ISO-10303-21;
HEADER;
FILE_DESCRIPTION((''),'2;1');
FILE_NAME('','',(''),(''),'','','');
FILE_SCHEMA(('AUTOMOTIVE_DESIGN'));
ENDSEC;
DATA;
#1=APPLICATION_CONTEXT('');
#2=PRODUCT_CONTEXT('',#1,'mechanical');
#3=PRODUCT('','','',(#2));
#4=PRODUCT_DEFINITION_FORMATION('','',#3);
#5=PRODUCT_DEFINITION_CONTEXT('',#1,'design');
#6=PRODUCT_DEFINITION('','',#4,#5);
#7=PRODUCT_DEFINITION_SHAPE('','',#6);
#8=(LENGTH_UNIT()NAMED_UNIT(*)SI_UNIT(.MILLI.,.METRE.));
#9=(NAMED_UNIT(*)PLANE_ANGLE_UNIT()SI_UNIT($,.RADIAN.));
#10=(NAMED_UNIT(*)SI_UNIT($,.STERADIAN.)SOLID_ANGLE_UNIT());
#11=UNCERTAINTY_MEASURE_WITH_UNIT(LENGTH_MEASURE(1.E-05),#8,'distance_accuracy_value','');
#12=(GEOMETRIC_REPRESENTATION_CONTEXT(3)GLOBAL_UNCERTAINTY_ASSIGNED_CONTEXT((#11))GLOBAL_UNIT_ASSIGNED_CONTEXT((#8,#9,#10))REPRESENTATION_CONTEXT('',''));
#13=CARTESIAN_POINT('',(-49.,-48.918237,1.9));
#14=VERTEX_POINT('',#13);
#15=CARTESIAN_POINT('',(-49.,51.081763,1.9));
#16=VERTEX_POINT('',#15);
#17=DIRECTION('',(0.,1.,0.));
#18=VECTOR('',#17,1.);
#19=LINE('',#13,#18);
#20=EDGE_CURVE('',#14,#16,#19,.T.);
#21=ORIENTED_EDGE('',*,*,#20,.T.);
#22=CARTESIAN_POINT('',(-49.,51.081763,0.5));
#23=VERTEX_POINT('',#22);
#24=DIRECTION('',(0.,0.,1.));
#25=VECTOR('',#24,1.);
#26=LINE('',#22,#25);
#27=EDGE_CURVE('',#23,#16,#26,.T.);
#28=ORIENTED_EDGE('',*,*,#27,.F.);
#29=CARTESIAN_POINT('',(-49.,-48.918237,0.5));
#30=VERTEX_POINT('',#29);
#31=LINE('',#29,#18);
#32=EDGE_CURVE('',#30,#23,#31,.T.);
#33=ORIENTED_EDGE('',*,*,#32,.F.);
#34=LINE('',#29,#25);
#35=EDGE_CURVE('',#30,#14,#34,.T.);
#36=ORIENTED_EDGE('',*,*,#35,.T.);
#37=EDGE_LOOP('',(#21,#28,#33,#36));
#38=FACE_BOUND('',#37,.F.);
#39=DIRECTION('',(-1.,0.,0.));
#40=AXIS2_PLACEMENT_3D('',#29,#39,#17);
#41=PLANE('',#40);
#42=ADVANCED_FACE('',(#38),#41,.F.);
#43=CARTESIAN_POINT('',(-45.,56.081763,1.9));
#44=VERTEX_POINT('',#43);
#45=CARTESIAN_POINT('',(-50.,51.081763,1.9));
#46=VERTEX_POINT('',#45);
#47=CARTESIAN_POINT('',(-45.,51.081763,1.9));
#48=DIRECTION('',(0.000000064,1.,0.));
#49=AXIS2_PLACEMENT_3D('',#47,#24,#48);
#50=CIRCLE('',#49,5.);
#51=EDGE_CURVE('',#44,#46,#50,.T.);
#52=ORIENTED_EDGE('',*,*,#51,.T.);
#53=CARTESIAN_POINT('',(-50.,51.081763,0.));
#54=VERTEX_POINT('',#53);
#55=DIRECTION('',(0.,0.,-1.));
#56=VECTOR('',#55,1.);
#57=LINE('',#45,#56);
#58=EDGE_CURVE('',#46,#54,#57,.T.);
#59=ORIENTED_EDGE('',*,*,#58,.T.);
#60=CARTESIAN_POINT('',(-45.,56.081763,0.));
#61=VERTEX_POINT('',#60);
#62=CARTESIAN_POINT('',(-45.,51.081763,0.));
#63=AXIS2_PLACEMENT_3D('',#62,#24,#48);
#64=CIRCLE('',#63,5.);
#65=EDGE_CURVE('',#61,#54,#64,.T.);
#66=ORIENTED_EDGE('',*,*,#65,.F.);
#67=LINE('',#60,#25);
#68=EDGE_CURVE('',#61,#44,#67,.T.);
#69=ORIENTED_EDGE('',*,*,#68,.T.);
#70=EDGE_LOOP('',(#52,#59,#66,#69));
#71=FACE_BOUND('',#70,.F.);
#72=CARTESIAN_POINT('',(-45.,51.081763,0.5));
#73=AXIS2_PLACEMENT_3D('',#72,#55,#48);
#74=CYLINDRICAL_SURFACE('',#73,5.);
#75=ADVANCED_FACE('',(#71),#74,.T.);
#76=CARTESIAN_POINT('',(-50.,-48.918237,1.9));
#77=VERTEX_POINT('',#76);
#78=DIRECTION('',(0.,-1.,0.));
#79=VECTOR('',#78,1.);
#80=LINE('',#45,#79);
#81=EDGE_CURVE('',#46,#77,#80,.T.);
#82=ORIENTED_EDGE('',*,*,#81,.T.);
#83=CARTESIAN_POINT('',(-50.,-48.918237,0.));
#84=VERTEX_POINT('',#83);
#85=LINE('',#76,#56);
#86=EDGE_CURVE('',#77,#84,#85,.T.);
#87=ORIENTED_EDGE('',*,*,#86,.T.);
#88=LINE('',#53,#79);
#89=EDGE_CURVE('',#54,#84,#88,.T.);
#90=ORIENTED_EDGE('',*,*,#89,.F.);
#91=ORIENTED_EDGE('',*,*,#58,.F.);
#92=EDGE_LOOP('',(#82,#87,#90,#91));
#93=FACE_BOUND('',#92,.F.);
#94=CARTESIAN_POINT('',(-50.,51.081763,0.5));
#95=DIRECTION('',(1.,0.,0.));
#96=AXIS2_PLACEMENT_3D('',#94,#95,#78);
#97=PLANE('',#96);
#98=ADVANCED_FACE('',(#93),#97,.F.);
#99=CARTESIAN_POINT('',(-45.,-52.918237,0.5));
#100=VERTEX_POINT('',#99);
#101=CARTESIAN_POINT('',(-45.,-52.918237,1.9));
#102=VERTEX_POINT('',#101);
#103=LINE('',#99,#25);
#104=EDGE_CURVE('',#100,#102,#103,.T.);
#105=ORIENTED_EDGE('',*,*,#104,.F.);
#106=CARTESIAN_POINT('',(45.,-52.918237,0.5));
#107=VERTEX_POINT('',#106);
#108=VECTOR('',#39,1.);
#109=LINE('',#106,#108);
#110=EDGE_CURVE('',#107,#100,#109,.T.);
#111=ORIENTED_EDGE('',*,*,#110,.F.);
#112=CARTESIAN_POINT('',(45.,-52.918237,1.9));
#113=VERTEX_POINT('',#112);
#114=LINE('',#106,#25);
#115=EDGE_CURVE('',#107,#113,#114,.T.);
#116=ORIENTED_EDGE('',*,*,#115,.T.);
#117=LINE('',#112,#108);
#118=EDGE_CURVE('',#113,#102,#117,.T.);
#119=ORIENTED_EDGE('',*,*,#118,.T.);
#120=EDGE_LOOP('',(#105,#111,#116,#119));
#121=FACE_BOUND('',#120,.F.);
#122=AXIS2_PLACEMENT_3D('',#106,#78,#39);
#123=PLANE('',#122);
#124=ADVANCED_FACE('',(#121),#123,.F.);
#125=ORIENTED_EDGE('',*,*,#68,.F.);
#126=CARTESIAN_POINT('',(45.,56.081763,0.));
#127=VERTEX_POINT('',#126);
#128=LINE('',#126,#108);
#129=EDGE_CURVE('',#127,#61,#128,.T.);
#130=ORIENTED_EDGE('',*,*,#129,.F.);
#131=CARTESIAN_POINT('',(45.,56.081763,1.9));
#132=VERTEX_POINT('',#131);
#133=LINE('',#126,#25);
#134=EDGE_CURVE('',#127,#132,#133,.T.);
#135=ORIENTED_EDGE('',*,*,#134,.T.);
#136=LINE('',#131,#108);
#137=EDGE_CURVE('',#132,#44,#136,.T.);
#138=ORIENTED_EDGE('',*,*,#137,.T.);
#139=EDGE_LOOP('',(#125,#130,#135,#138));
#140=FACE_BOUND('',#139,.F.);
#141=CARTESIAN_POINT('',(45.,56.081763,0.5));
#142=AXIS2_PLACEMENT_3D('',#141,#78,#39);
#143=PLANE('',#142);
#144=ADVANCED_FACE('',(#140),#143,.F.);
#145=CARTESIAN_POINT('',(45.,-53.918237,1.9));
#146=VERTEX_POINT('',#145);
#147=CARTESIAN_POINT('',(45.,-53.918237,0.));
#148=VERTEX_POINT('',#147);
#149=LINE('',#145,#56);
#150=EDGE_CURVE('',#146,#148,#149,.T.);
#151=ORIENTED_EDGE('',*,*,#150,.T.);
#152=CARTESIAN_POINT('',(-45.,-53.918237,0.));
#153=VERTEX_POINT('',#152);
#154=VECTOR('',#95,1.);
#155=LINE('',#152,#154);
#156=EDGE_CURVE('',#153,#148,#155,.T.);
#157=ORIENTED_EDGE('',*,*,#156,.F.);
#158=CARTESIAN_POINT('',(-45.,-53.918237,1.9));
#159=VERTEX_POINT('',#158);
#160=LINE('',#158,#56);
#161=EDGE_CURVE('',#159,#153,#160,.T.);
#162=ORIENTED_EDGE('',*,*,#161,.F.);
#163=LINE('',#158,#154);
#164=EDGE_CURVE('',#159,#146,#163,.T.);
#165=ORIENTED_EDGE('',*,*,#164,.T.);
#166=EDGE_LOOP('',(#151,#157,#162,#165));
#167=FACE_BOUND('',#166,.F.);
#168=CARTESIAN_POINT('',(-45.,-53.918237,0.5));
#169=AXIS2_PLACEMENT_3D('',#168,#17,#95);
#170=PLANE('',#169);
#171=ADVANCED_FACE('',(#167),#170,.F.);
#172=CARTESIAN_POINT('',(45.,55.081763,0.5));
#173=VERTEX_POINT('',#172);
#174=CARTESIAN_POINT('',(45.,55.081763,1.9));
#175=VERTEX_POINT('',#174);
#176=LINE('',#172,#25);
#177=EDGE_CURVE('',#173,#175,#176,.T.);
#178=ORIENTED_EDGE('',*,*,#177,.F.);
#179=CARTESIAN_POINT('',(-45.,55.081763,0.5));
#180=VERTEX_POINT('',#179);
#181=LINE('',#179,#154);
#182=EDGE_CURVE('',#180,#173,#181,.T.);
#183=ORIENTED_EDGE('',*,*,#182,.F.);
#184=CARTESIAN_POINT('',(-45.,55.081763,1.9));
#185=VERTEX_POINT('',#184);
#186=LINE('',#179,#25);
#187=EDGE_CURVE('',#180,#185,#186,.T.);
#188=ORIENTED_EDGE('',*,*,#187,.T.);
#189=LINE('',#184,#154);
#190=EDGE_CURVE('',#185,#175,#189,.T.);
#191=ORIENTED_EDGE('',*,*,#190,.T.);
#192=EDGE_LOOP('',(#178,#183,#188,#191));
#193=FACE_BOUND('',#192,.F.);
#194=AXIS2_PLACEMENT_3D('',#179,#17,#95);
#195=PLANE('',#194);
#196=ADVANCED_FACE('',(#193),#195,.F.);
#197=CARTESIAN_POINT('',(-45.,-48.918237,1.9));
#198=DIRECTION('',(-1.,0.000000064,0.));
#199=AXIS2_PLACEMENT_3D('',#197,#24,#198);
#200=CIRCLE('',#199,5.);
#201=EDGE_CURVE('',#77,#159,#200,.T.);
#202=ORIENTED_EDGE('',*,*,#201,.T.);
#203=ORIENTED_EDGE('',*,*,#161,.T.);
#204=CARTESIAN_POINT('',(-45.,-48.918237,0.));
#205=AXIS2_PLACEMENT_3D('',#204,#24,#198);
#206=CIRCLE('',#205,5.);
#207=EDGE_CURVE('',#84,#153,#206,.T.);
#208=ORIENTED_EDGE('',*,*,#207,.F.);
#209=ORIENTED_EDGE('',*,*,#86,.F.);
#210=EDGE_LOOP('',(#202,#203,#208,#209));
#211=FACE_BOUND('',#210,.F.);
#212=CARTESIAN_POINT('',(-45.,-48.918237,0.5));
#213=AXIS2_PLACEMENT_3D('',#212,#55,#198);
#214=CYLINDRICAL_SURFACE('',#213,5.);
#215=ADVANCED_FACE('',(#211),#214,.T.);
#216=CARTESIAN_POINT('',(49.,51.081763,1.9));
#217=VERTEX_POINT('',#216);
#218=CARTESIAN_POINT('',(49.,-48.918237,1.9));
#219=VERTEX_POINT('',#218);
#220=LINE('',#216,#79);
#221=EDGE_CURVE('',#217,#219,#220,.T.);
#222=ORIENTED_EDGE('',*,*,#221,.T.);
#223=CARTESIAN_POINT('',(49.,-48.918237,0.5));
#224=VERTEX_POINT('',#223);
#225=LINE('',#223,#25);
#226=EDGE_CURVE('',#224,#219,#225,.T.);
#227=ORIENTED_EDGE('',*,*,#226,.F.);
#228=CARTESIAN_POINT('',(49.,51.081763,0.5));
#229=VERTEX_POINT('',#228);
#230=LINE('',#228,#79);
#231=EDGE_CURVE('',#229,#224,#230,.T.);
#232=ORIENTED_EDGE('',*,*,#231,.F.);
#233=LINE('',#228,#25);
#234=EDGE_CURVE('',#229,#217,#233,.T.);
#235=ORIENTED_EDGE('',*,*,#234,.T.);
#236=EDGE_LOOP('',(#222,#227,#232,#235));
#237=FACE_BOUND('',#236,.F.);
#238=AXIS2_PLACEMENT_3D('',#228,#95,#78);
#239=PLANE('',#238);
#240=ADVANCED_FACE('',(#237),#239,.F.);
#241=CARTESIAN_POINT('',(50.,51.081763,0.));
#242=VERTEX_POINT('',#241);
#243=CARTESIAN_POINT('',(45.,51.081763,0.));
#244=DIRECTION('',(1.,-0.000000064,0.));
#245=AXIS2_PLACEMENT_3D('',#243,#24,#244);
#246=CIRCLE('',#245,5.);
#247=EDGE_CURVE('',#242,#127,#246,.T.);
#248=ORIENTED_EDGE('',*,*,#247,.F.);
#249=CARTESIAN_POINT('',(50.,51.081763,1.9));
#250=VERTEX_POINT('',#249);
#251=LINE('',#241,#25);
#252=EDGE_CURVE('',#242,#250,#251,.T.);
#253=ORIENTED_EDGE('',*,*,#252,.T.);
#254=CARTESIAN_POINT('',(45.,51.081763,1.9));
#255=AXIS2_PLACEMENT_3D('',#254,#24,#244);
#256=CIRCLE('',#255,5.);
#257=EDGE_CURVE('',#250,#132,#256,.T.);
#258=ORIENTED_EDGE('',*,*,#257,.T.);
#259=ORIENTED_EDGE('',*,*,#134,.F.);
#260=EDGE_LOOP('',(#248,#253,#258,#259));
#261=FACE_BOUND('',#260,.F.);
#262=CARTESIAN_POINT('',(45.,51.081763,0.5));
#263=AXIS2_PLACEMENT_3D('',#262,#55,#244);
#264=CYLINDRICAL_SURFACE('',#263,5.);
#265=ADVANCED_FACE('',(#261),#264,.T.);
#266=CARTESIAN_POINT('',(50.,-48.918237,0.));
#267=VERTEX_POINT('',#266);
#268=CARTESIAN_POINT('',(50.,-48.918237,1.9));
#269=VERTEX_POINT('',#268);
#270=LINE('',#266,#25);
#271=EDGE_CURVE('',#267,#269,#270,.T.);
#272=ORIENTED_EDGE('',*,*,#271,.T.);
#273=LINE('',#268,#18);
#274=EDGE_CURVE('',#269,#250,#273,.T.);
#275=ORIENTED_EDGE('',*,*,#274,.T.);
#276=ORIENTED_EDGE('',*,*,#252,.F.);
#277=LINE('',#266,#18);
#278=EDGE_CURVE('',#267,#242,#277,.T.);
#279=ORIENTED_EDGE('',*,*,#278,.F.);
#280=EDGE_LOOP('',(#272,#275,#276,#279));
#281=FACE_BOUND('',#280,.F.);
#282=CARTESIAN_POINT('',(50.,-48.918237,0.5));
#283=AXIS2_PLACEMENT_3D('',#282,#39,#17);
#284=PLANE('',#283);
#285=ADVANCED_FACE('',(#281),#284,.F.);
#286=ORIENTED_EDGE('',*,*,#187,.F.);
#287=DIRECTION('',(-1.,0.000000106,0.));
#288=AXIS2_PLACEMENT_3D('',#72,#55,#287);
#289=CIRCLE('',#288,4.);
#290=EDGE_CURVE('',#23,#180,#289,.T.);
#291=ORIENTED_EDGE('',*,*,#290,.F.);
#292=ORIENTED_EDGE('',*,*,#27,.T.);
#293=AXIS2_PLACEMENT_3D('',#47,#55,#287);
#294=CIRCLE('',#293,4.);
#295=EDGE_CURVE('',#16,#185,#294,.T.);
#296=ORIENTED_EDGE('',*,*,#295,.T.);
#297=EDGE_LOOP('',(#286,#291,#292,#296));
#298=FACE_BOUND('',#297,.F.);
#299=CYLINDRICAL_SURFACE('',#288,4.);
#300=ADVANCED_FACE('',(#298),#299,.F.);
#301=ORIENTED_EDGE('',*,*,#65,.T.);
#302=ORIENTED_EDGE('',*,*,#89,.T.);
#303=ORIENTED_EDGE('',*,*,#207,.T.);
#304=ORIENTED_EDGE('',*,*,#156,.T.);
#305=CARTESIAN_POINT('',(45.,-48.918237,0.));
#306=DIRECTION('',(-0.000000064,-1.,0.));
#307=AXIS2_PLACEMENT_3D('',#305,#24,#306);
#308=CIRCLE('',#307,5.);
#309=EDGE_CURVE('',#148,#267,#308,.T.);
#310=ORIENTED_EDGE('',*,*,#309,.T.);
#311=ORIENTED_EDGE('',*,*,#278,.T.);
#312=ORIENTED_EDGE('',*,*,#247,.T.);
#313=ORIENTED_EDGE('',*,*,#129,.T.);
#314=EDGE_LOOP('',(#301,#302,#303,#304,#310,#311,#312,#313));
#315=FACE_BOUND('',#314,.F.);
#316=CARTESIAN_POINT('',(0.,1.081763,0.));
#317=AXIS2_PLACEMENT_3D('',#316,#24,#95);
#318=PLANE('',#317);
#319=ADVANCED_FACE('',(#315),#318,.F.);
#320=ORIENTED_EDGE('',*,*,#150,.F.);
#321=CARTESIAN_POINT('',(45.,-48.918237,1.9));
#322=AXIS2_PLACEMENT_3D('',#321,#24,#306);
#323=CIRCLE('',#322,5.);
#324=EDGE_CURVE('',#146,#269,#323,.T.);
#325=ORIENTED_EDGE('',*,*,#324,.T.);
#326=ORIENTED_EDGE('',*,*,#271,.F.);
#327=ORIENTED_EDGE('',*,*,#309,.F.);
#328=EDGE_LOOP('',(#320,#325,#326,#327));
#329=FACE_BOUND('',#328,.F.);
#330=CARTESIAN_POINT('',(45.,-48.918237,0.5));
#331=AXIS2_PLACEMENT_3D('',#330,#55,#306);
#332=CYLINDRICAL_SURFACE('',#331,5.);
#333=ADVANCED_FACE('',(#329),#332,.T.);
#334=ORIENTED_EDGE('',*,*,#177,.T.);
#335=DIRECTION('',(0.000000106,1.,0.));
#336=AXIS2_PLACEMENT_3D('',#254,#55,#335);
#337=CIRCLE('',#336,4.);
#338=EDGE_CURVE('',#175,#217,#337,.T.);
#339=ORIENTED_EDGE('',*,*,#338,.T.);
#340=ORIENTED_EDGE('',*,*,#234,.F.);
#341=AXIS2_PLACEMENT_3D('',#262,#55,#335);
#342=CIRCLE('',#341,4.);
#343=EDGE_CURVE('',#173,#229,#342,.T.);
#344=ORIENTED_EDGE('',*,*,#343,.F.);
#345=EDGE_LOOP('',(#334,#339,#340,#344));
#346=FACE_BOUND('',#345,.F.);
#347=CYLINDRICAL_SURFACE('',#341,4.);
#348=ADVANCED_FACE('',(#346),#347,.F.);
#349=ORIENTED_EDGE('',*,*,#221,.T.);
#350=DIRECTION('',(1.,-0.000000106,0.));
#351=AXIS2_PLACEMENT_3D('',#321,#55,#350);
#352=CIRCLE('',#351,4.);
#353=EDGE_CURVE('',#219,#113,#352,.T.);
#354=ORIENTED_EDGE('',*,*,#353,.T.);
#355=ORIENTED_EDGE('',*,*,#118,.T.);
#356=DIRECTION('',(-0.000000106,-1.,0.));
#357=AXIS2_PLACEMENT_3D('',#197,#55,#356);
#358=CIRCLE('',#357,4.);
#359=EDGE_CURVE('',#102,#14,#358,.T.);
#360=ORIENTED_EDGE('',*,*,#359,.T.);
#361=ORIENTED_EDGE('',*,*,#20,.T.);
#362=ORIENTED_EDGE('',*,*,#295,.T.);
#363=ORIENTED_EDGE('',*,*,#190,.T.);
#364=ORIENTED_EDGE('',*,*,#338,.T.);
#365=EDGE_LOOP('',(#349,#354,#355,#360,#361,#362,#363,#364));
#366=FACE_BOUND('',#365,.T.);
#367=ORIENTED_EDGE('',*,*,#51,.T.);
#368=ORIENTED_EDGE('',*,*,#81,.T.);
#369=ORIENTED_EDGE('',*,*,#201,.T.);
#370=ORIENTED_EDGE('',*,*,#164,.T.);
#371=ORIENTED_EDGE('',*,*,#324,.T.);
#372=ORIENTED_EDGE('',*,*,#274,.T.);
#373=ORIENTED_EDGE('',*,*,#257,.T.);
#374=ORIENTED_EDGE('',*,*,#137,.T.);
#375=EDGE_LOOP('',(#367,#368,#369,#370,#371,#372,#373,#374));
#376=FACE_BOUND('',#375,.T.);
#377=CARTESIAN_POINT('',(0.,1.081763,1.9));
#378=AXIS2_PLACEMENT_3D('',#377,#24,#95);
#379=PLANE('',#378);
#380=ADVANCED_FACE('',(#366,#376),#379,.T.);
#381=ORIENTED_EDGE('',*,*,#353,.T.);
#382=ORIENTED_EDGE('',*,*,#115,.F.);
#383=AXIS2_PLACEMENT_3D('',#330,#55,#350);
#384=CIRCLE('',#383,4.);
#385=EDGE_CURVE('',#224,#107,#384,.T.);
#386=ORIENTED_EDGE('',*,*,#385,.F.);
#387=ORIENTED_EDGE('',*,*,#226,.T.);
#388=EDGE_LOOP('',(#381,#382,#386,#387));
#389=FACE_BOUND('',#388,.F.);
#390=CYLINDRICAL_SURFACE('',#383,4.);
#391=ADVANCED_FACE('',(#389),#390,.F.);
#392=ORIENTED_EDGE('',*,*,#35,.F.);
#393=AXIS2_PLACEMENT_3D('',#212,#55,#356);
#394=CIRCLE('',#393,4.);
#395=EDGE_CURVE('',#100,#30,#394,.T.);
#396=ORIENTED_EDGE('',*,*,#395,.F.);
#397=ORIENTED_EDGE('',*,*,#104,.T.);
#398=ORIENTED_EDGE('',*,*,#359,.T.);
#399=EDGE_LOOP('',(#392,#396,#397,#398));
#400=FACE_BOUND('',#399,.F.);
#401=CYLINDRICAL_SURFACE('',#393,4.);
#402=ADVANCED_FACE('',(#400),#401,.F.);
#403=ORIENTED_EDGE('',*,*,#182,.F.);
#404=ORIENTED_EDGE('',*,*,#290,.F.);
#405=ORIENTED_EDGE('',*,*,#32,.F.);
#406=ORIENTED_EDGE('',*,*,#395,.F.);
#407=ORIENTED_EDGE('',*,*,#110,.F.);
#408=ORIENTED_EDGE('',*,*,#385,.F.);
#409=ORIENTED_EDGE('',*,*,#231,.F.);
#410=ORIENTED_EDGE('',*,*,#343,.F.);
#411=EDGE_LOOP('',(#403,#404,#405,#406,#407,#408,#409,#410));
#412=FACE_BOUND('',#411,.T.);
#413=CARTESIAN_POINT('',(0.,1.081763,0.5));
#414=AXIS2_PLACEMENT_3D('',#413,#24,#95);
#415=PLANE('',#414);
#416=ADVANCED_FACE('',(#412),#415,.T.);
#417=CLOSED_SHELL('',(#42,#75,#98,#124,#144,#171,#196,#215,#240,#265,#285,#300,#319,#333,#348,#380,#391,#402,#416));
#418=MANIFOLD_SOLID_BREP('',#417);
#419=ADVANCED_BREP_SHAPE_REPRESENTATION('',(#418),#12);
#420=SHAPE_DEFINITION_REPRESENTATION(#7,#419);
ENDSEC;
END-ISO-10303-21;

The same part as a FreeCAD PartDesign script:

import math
import FreeCAD as App
import Part
import Sketcher

V = App.Vector
Q = App.Units.Quantity

doc = App.newDocument("Part")
params = doc.addObject("Spreadsheet::Sheet", "Params")
for row, (alias, value) in enumerate([
    ("sketch1_radius", "5 mm"),
    ("sketch1_width", "90 mm"),
    ("sketch1_height", "100 mm"),
    ("pad1_length", "0.5 mm"),
    ("sketch2_radius", "5 mm"),
    ("sketch2_radius2", "4 mm"),
    ("sketch2_width", "90 mm"),
    ("sketch2_height", "100 mm"),
    ("pad2_length", "1.4 mm"),
], start=1):
    params.set(f"A{row}", alias)
    params.set(f"B{row}", "=" + value)
    params.setAlias(f"B{row}", alias)

body = doc.addObject("PartDesign::Body", "Body")

# Sketch on XY plane
sketch1 = doc.addObject("Sketcher::SketchObject", "Sketch")
body.addObject(sketch1)
sketch1.AttachmentSupport = (doc.XY_Plane, [""])
sketch1.MapMode = "FlatFace"
sketch1.addGeometry([
    Part.LineSegment(V(-45, -53.9, 0), V(45, -53.9, 0)),  # 0
    Part.ArcOfCircle(Part.Circle(V(45, -48.9, 0), V(0, 0, 1), 5), math.radians(-90), math.radians(0)),  # 1
    Part.LineSegment(V(50, -48.9, 0), V(50, 51.1, 0)),  # 2
    Part.ArcOfCircle(Part.Circle(V(45, 51.1, 0), V(0, 0, 1), 5), math.radians(0), math.radians(90)),  # 3
    Part.LineSegment(V(45, 56.1, 0), V(-45, 56.1, 0)),  # 4
    Part.ArcOfCircle(Part.Circle(V(-45, 51.1, 0), V(0, 0, 1), 5), math.radians(90), math.radians(180)),  # 5
    Part.LineSegment(V(-50, 51.1, 0), V(-50, -48.9, 0)),  # 6
    Part.ArcOfCircle(Part.Circle(V(-45, -48.9, 0), V(0, 0, 1), 5), math.radians(180), math.radians(270)),  # 7
], False)
sketch1.addConstraint([
    Sketcher.Constraint("Tangent", 0, 2, 1, 1),
    Sketcher.Constraint("Tangent", 1, 2, 2, 1),
    Sketcher.Constraint("Tangent", 2, 2, 3, 1),
    Sketcher.Constraint("Tangent", 3, 2, 4, 1),
    Sketcher.Constraint("Tangent", 4, 2, 5, 1),
    Sketcher.Constraint("Tangent", 5, 2, 6, 1),
    Sketcher.Constraint("Tangent", 6, 2, 7, 1),
    Sketcher.Constraint("Tangent", 7, 2, 0, 1),
    Sketcher.Constraint("Horizontal", 0),
    Sketcher.Constraint("Vertical", 2),
    Sketcher.Constraint("Horizontal", 4),
    Sketcher.Constraint("Vertical", 6),
    Sketcher.Constraint("Equal", 1, 3),
    Sketcher.Constraint("Equal", 3, 5),
    Sketcher.Constraint("Equal", 5, 7),
    Sketcher.Constraint("Radius", 1, Q("5 mm")),
    Sketcher.Constraint("DistanceX", 0, 1, 0, 2, Q("90 mm")),
    Sketcher.Constraint("DistanceY", 2, 1, 2, 2, Q("100 mm")),
    Sketcher.Constraint("DistanceX", -1, 1, 1, 3, Q("45 mm")),
    Sketcher.Constraint("DistanceY", 1, 3, -1, 1, Q("48.918237 mm")),
])
sketch1.setExpression("Constraints[15]", "Params.sketch1_radius")
sketch1.setExpression("Constraints[16]", "Params.sketch1_width")
sketch1.setExpression("Constraints[17]", "Params.sketch1_height")
pad1 = doc.addObject("PartDesign::Pad", "Pad")
body.addObject(pad1)
pad1.Profile = sketch1
pad1.setExpression("Length", "Params.pad1_length")

# Sketch on XY plane
sketch2 = doc.addObject("Sketcher::SketchObject", "Sketch001")
body.addObject(sketch2)
sketch2.AttachmentSupport = (doc.XY_Plane, [""])
sketch2.MapMode = "FlatFace"
sketch2.AttachmentOffset = App.Placement(V(0, 0, 0.5), App.Rotation())
sketch2.addGeometry([
    Part.ArcOfCircle(Part.Circle(V(45, -48.9, 0), V(0, 0, 1), 5), math.radians(-90), math.radians(0)),  # 0
    Part.LineSegment(V(50, -48.9, 0), V(50, 51.1, 0)),  # 1
    Part.ArcOfCircle(Part.Circle(V(45, 51.1, 0), V(0, 0, 1), 5), math.radians(0), math.radians(90)),  # 2
    Part.LineSegment(V(45, 56.1, 0), V(-45, 56.1, 0)),  # 3
    Part.ArcOfCircle(Part.Circle(V(-45, 51.1, 0), V(0, 0, 1), 5), math.radians(90), math.radians(180)),  # 4
    Part.LineSegment(V(-50, 51.1, 0), V(-50, -48.9, 0)),  # 5
    Part.ArcOfCircle(Part.Circle(V(-45, -48.9, 0), V(0, 0, 1), 5), math.radians(180), math.radians(270)),  # 6
    Part.LineSegment(V(-45, -53.9, 0), V(45, -53.9, 0)),  # 7
    Part.ArcOfCircle(Part.Circle(V(45, 51.1, 0), V(0, 0, 1), 4), math.radians(0), math.radians(90)),  # 8
    Part.LineSegment(V(49, 51.1, 0), V(49, -48.9, 0)),  # 9
    Part.ArcOfCircle(Part.Circle(V(45, -48.9, 0), V(0, 0, 1), 4), math.radians(-90), math.radians(0)),  # 10
    Part.LineSegment(V(45, -52.9, 0), V(-45, -52.9, 0)),  # 11
    Part.ArcOfCircle(Part.Circle(V(-45, -48.9, 0), V(0, 0, 1), 4), math.radians(-180), math.radians(-90)),  # 12
    Part.LineSegment(V(-49, -48.9, 0), V(-49, 51.1, 0)),  # 13
    Part.ArcOfCircle(Part.Circle(V(-45, 51.1, 0), V(0, 0, 1), 4), math.radians(90), math.radians(180)),  # 14
    Part.LineSegment(V(-45, 55.1, 0), V(45, 55.1, 0)),  # 15
], False)
sketch2.addConstraint([
    Sketcher.Constraint("Tangent", 0, 2, 1, 1),
    Sketcher.Constraint("Tangent", 1, 2, 2, 1),
    Sketcher.Constraint("Tangent", 2, 2, 3, 1),
    Sketcher.Constraint("Tangent", 3, 2, 4, 1),
    Sketcher.Constraint("Tangent", 4, 2, 5, 1),
    Sketcher.Constraint("Tangent", 5, 2, 6, 1),
    Sketcher.Constraint("Tangent", 6, 2, 7, 1),
    Sketcher.Constraint("Tangent", 7, 2, 0, 1),
    Sketcher.Constraint("Tangent", 8, 1, 9, 1),
    Sketcher.Constraint("Tangent", 9, 2, 10, 2),
    Sketcher.Constraint("Tangent", 10, 1, 11, 1),
    Sketcher.Constraint("Tangent", 11, 2, 12, 2),
    Sketcher.Constraint("Tangent", 12, 1, 13, 1),
    Sketcher.Constraint("Tangent", 13, 2, 14, 2),
    Sketcher.Constraint("Tangent", 14, 1, 15, 1),
    Sketcher.Constraint("Tangent", 15, 2, 8, 2),
    Sketcher.Constraint("Vertical", 1),
    Sketcher.Constraint("Horizontal", 3),
    Sketcher.Constraint("Vertical", 5),
    Sketcher.Constraint("Horizontal", 7),
    Sketcher.Constraint("Vertical", 9),
    Sketcher.Constraint("Horizontal", 11),
    Sketcher.Constraint("Vertical", 13),
    Sketcher.Constraint("Horizontal", 15),
    Sketcher.Constraint("Coincident", 8, 3, 2, 3),
    Sketcher.Constraint("Coincident", 10, 3, 0, 3),
    Sketcher.Constraint("Coincident", 12, 3, 6, 3),
    Sketcher.Constraint("Equal", 0, 2),
    Sketcher.Constraint("Equal", 2, 4),
    Sketcher.Constraint("Equal", 4, 6),
    Sketcher.Constraint("Equal", 12, 14),
    Sketcher.Constraint("Radius", 0, Q("5 mm")),
    Sketcher.Constraint("Radius", 8, Q("4 mm")),
    Sketcher.Constraint("DistanceX", 3, 2, 3, 1, Q("90 mm")),
    Sketcher.Constraint("DistanceY", 1, 1, 1, 2, Q("100 mm")),
    Sketcher.Constraint("DistanceX", -1, 1, 0, 3, Q("45 mm")),
    Sketcher.Constraint("DistanceY", 0, 3, -1, 1, Q("48.918237 mm")),
])
sketch2.setExpression("Constraints[31]", "Params.sketch2_radius")
sketch2.setExpression("Constraints[32]", "Params.sketch2_radius2")
sketch2.setExpression("Constraints[33]", "Params.sketch2_width")
sketch2.setExpression("Constraints[34]", "Params.sketch2_height")
pad2 = doc.addObject("PartDesign::Pad", "Pad001")
body.addObject(pad2)
pad2.Profile = sketch2
pad2.setExpression("Length", "Params.pad2_length")

doc.recompute()
